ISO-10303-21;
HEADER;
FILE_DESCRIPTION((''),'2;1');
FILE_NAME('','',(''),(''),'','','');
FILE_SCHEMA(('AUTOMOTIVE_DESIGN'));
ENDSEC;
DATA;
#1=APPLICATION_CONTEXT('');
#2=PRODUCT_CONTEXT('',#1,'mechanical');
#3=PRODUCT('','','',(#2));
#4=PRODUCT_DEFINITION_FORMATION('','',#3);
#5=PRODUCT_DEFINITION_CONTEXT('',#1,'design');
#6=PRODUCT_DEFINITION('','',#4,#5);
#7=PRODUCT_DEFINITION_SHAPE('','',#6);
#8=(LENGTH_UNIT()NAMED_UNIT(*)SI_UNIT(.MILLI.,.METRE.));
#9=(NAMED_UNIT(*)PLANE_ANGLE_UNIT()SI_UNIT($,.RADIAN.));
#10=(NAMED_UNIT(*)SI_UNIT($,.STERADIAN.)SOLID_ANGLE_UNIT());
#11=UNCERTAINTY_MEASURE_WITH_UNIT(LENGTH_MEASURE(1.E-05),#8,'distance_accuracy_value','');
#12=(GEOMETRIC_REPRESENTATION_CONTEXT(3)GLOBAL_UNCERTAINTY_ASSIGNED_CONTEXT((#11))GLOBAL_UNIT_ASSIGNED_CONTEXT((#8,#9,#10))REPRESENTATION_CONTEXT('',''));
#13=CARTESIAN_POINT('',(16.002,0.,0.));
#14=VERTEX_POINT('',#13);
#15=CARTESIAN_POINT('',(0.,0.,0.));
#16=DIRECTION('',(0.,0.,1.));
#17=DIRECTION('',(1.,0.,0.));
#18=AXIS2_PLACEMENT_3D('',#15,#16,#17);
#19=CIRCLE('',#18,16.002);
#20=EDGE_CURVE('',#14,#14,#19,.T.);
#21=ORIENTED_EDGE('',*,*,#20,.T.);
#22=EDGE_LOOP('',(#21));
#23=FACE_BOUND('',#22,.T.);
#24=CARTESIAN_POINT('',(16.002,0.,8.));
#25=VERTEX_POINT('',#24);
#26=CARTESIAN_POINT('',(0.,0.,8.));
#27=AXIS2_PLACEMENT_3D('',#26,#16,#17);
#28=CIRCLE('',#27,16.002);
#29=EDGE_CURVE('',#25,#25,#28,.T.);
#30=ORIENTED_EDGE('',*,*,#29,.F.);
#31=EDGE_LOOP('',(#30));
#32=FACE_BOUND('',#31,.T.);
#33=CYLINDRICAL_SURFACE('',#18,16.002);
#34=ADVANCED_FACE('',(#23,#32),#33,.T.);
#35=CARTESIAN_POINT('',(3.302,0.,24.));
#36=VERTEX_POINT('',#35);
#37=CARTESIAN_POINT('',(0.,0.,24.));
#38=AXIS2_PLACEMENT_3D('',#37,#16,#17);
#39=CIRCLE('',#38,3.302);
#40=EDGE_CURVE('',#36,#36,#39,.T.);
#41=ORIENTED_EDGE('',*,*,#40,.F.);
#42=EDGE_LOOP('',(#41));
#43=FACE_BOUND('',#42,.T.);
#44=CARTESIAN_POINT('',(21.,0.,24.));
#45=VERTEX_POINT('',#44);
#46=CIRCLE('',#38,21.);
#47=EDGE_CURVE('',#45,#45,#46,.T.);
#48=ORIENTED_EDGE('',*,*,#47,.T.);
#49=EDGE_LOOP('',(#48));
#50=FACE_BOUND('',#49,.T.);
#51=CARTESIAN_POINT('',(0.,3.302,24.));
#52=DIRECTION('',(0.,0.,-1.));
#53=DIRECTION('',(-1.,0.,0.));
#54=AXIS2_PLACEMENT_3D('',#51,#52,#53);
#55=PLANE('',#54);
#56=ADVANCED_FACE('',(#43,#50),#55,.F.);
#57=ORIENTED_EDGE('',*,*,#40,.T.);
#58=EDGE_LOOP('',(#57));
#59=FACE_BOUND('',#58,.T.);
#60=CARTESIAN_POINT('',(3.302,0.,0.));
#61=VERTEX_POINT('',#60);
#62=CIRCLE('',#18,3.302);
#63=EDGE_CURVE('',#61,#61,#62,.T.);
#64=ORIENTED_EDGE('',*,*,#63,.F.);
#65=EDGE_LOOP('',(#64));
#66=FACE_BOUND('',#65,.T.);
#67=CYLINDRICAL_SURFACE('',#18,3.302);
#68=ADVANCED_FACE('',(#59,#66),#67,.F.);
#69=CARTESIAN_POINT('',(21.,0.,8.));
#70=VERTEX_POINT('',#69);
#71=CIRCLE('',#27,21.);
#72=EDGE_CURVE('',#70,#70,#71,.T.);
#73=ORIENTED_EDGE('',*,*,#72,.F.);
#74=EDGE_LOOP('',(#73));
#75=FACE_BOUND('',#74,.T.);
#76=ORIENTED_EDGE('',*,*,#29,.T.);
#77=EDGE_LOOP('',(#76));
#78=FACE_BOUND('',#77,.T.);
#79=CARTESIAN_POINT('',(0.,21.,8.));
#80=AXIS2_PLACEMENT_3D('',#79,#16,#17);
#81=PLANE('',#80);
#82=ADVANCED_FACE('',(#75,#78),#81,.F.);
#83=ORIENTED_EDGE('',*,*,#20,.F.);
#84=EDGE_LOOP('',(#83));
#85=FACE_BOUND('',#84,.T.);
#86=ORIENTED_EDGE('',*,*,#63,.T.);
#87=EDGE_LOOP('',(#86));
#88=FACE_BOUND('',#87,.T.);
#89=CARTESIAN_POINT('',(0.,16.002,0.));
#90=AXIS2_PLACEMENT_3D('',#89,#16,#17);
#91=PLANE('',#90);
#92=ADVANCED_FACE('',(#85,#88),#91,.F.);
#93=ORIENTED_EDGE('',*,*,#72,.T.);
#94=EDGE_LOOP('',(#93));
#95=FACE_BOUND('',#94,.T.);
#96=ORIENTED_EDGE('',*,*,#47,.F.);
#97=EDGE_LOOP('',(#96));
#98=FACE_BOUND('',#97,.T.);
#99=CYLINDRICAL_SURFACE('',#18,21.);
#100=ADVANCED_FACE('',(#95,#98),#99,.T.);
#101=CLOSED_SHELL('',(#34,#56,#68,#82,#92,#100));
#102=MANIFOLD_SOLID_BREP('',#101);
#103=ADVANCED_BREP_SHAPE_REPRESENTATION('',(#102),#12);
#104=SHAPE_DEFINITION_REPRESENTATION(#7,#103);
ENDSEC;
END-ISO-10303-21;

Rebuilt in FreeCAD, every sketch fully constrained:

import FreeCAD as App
import Part
import Sketcher

V = App.Vector

doc = App.newDocument("Part")
params = doc.addObject("Spreadsheet::Sheet", "Params")
for row, (alias, value) in enumerate([
    ("sketch1_height", "24 mm"),
    ("sketch1_height2", "8 mm"),
    ("sketch1_width", "12.7 mm"),
    ("revolution_angle", "360 deg"),
], start=1):
    params.set(f"A{row}", alias)
    params.set(f"B{row}", "=" + value)
    params.setAlias(f"B{row}", alias)

body = doc.addObject("PartDesign::Body", "Body")

# Sketch on YZ plane
sketch1 = body.newObject("Sketcher::SketchObject", "Sketch")
sketch1.AttachmentSupport = (doc.getObject("YZ_Plane"), [""])
sketch1.MapMode = "FlatFace"
sketch1.addGeometry([
    Part.LineSegment(V(3.302, 24, 0), V(3.302, 0, 0)),  # 0
    Part.LineSegment(V(3.302, 0, 0), V(16.002, 0, 0)),  # 1
    Part.LineSegment(V(16.002, 0, 0), V(16.002, 8, 0)),  # 2
    Part.LineSegment(V(16.002, 8, 0), V(21, 8, 0)),  # 3
    Part.LineSegment(V(21, 8, 0), V(21, 24, 0)),  # 4
    Part.LineSegment(V(21, 24, 0), V(3.302, 24, 0)),  # 5
], False)
sketch1.addConstraint([
    Sketcher.Constraint("Coincident", 0, 2, 1, 1),
    Sketcher.Constraint("Coincident", 1, 2, 2, 1),
    Sketcher.Constraint("Coincident", 2, 2, 3, 1),
    Sketcher.Constraint("Coincident", 3, 2, 4, 1),
    Sketcher.Constraint("Coincident", 4, 2, 5, 1),
    Sketcher.Constraint("Coincident", 5, 2, 0, 1),
    Sketcher.Constraint("Vertical", 0),
    Sketcher.Constraint("Horizontal", 1),
    Sketcher.Constraint("Vertical", 2),
    Sketcher.Constraint("Horizontal", 3),
    Sketcher.Constraint("Vertical", 4),
    Sketcher.Constraint("Horizontal", 5),
    Sketcher.Constraint("PointOnObject", 0, 2, -1),
    Sketcher.Constraint("DistanceY", 0, 2, 0, 1, 24.0),
    Sketcher.Constraint("DistanceY", 2, 1, 2, 2, 8.0),
    Sketcher.Constraint("DistanceX", 1, 1, 1, 2, 12.7),
    Sketcher.Constraint("DistanceX", -1, 1, 3, 2, 21.0),
    Sketcher.Constraint("DistanceX", 3, 1, 3, 2, 4.998),
])
sketch1.setExpression("Constraints[13]", "Params.sketch1_height")
sketch1.setExpression("Constraints[14]", "Params.sketch1_height2")
sketch1.setExpression("Constraints[15]", "Params.sketch1_width")
revolution = body.newObject("PartDesign::Revolution", "Revolution")
revolution.Profile = sketch1
revolution.ReferenceAxis = (sketch1, ["V_Axis"])
revolution.setExpression("Angle", "Params.revolution_angle")

doc.recompute()
